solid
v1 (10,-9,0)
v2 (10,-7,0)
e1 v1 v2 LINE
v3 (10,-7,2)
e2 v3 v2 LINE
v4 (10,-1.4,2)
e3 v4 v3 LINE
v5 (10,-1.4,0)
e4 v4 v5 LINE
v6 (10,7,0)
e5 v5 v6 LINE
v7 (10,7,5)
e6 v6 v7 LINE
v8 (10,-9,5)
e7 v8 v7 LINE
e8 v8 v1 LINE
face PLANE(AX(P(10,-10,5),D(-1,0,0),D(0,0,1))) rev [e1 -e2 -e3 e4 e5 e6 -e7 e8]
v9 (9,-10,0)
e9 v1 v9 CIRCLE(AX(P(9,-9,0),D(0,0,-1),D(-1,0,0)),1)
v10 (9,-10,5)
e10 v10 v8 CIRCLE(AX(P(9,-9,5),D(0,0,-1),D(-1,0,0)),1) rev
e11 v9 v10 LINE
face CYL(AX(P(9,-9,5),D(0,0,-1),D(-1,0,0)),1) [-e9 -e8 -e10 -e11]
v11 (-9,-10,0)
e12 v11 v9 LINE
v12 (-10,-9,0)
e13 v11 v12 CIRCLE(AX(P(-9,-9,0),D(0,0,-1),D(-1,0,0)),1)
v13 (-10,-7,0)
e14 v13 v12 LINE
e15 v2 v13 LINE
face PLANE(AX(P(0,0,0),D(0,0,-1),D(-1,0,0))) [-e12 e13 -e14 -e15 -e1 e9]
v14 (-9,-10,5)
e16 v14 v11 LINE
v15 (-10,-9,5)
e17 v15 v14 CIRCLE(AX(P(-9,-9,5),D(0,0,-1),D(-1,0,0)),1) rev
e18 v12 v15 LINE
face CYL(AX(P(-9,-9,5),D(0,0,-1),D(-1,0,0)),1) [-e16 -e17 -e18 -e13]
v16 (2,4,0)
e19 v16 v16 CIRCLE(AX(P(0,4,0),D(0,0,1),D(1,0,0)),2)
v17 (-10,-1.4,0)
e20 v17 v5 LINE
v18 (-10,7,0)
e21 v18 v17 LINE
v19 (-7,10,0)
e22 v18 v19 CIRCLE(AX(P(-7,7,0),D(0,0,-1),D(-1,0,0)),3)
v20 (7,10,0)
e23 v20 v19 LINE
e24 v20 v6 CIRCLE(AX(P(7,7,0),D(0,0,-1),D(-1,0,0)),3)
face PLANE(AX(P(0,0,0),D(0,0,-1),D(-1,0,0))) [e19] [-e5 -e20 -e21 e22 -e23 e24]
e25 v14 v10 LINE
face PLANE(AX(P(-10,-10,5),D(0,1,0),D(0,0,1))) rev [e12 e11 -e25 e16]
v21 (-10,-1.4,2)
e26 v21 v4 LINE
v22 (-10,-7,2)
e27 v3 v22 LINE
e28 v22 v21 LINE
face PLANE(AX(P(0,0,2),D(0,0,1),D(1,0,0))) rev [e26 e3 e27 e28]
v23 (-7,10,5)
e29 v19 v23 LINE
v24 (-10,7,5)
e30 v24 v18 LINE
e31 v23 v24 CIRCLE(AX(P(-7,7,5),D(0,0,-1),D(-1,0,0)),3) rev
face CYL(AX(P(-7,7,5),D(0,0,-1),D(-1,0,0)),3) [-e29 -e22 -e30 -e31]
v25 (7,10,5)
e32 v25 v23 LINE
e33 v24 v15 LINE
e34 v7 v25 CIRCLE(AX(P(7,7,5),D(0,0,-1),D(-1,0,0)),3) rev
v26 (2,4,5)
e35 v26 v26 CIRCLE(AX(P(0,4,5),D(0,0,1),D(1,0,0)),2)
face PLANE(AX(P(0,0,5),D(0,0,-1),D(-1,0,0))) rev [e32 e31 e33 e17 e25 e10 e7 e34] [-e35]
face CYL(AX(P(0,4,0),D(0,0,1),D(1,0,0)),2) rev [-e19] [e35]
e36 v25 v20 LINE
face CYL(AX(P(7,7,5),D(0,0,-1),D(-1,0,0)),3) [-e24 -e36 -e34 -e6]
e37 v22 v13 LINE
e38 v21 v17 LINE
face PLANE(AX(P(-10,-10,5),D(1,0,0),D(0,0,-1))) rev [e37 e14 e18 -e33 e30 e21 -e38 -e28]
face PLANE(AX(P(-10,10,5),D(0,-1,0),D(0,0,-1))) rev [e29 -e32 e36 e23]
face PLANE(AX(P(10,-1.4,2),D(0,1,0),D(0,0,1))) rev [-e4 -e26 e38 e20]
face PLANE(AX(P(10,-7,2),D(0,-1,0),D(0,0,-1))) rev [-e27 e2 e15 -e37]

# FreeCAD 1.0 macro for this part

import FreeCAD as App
import Part
import Sketcher
from FreeCAD import Vector


def edges_at(feature, points):
    """Names of the edges that pass closest to the given points."""
    edges = feature.Shape.Edges
    near = lambda p: min(range(len(edges)), key=lambda i: edges[i].distToShape(Part.Vertex(*p))[0])
    return sorted({f"Edge{near(p) + 1}" for p in points})


def add_polygon(sketch, points):
    """Adds a closed chain of lines whose ends are joined by coincident constraints."""
    first, n = sketch.GeometryCount, len(points)
    for a, b in zip(points, points[1:] + points[:1]):
        sketch.addGeometry(Part.LineSegment(App.Vector(*a, 0), App.Vector(*b, 0)), False)
    for i in range(n):
        sketch.addConstraint(Sketcher.Constraint("Coincident", first + i, 2, first + (i + 1) % n, 1))

doc = App.newDocument("Part")
body = doc.addObject("PartDesign::Body", "Body")

# Sketch on XY plane
sketch1 = body.newObject("Sketcher::SketchObject", "Sketch")
sketch1.AttachmentSupport = (doc.getObject("XY_Plane"), [""])
sketch1.MapMode = "FlatFace"
add_polygon(sketch1, [(-10, 10), (-10, -10), (10, -10), (10, 10)])  # lines 0-3
sketch1.addConstraint([
    Sketcher.Constraint("Vertical", 0),
    Sketcher.Constraint("Horizontal", 1),
    Sketcher.Constraint("Vertical", 2),
    Sketcher.Constraint("Horizontal", 3),
    Sketcher.Constraint("Symmetric", 0, 2, 2, 2, -1, 1),
    Sketcher.Constraint("Equal", 3, 0),
    Sketcher.Constraint("DistanceX", 1, 1, 1, 2, 20.0),
])
pad1 = body.newObject("PartDesign::Pad", "Pad")
pad1.Profile = sketch1
pad1.Length = 5

# Sketch on XY plane
sketch2 = body.newObject("Sketcher::SketchObject", "Sketch001")
sketch2.AttachmentSupport = (doc.getObject("XY_Plane"), [""])
sketch2.MapMode = "FlatFace"
sketch2.AttachmentOffset = App.Placement(Vector(0, 0, 5), App.Rotation())
sketch2.addGeometry(Part.Circle(Vector(0, 4, 0), Vector(0, 0, 1), 2), False)
sketch2.addConstraint([
    Sketcher.Constraint("PointOnObject", 0, 3, -2),
    Sketcher.Constraint("Diameter", 0, 4.0),
    Sketcher.Constraint("DistanceY", -1, 1, 0, 3, 4.0),
])
pocket1 = body.newObject("PartDesign::Pocket", "Pocket")
pocket1.Profile = sketch2
pocket1.Type = "ThroughAll"
doc.recompute()

fillet = body.newObject("PartDesign::Fillet", "Fillet")
fillet.Base = (pocket1, edges_at(pocket1, [(-10, 10, 2.5), (10, 10, 2.5)]))
fillet.Radius = 3
doc.recompute()

fillet2 = body.newObject("PartDesign::Fillet", "Fillet001")
fillet2.Base = (fillet, edges_at(fillet, [(10, -10, 2.5), (-10, -10, 2.5)]))
fillet2.Radius = 1

# Sketch on XY plane
sketch3 = body.newObject("Sketcher::SketchObject", "Sketch002")
sketch3.AttachmentSupport = (doc.getObject("XY_Plane"), [""])
sketch3.MapMode = "FlatFace"
add_polygon(sketch3, [(10, -1.4), (10, -7), (-10, -7), (-10, -1.4)])  # lines 0-3
sketch3.addConstraint([
    Sketcher.Constraint("Vertical", 0),
    Sketcher.Constraint("Horizontal", 1),
    Sketcher.Constraint("Vertical", 2),
    Sketcher.Constraint("Horizontal", 3),
    Sketcher.Constraint("DistanceX", 1, 2, 1, 1, 20.0),
    Sketcher.Constraint("DistanceY", 0, 2, 0, 1, 5.6),
    Sketcher.Constraint("DistanceX", -1, 1, 0, 2, 10.0),
    Sketcher.Constraint("DistanceY", 0, 2, -1, 1, 7.0),
])
pocket2 = body.newObject("PartDesign::Pocket", "Pocket001")
pocket2.Profile = sketch3
pocket2.Length = 2
pocket2.Reversed = True

doc.recompute()
